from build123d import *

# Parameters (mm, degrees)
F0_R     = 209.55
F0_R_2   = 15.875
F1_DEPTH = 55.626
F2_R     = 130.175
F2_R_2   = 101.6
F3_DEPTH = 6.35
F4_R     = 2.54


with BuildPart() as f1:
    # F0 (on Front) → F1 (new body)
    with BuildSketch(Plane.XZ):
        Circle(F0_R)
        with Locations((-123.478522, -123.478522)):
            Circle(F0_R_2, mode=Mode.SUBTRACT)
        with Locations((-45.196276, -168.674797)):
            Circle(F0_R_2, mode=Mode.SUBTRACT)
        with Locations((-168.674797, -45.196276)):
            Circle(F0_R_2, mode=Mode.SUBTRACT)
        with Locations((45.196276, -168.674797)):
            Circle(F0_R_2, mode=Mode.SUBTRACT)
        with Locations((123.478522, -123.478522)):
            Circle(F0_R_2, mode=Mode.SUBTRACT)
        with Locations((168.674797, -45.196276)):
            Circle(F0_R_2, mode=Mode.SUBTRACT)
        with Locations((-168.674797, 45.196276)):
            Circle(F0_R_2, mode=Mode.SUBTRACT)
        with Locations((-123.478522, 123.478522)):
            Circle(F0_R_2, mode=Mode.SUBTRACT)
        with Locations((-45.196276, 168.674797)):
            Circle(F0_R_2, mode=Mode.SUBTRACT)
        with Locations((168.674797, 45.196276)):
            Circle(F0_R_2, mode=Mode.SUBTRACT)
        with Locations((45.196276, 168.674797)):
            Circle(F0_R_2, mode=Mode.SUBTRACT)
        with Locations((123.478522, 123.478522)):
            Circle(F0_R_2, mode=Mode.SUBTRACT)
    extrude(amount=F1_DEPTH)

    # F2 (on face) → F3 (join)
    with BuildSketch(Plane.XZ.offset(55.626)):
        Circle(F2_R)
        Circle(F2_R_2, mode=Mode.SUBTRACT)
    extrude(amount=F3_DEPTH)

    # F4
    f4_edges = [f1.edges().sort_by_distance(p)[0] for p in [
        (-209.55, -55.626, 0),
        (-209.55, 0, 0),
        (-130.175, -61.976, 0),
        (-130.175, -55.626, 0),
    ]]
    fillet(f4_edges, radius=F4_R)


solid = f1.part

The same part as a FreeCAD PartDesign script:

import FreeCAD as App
import Part
import Sketcher
Q = App.Units.Quantity


def edges_at(feature, points):
    """Names of the edges that pass closest to the given points."""
    edges = feature.Shape.Edges
    near = lambda p: min(range(len(edges)), key=lambda i: edges[i].distToShape(Part.Vertex(*p))[0])
    return sorted({f"Edge{near(p) + 1}" for p in points})

doc = App.newDocument("Part")
body = doc.addObject("PartDesign::Body", "Body")

# Sketch on XZ plane
sketch1 = body.newObject("Sketcher::SketchObject", "Sketch")
sketch1.AttachmentSupport = (doc.getObject("XZ_Plane"), [""])
sketch1.MapMode = "FlatFace"
sketch1.addGeometry(Part.Circle(App.Vector(0, 0, 0), App.Vector(0, 0, 1), 210), False)
sketch1.addGeometry(Part.Circle(App.Vector(-123, -123, 0), App.Vector(0, 0, 1), 16), False)
sketch1.addGeometry(Part.Circle(App.Vector(-45, -169, 0), App.Vector(0, 0, 1), 16), False)
sketch1.addGeometry(Part.Circle(App.Vector(-169, -45, 0), App.Vector(0, 0, 1), 16), False)
sketch1.addGeometry(Part.Circle(App.Vector(45, -169, 0), App.Vector(0, 0, 1), 16), False)
sketch1.addGeometry(Part.Circle(App.Vector(123, -123, 0), App.Vector(0, 0, 1), 16), False)
sketch1.addGeometry(Part.Circle(App.Vector(169, -45, 0), App.Vector(0, 0, 1), 16), False)
sketch1.addGeometry(Part.Circle(App.Vector(-169, 45, 0), App.Vector(0, 0, 1), 16), False)
sketch1.addGeometry(Part.Circle(App.Vector(-123, 123, 0), App.Vector(0, 0, 1), 16), False)
sketch1.addGeometry(Part.Circle(App.Vector(-45, 169, 0), App.Vector(0, 0, 1), 16), False)
sketch1.addGeometry(Part.Circle(App.Vector(169, 45, 0), App.Vector(0, 0, 1), 16), False)
sketch1.addGeometry(Part.Circle(App.Vector(45, 169, 0), App.Vector(0, 0, 1), 16), False)
sketch1.addGeometry(Part.Circle(App.Vector(123, 123, 0), App.Vector(0, 0, 1), 16), False)
sketch1.addConstraint(Sketcher.Constraint("Coincident", 0, 3, -1, 1))
sketch1.addConstraint(Sketcher.Constraint("Equal", 1, 2))
sketch1.addConstraint(Sketcher.Constraint("Equal", 2, 3))
sketch1.addConstraint(Sketcher.Constraint("Equal", 3, 4))
sketch1.addConstraint(Sketcher.Constraint("Equal", 4, 5))
sketch1.addConstraint(Sketcher.Constraint("Equal", 5, 6))
sketch1.addConstraint(Sketcher.Constraint("Equal", 6, 7))
sketch1.addConstraint(Sketcher.Constraint("Equal", 7, 8))
sketch1.addConstraint(Sketcher.Constraint("Equal", 8, 9))
sketch1.addConstraint(Sketcher.Constraint("Equal", 9, 10))
sketch1.addConstraint(Sketcher.Constraint("Equal", 10, 11))
sketch1.addConstraint(Sketcher.Constraint("Equal", 11, 12))
sketch1.addConstraint(Sketcher.Constraint("Symmetric", 6, 3, 7, 3, -1, 1))
sketch1.addConstraint(Sketcher.Constraint("Symmetric", 5, 3, 8, 3, -1, 1))
sketch1.addConstraint(Sketcher.Constraint("Symmetric", 4, 3, 9, 3, -1, 1))
sketch1.addConstraint(Sketcher.Constraint("Symmetric", 3, 3, 10, 3, -1, 1))
sketch1.addConstraint(Sketcher.Constraint("Symmetric", 2, 3, 11, 3, -1, 1))
sketch1.addConstraint(Sketcher.Constraint("Symmetric", 1, 3, 12, 3, -1, 1))
sketch1.addConstraint(Sketcher.Constraint("Symmetric", 2, 3, 4, 3, -2))
sketch1.addConstraint(Sketcher.Constraint("Symmetric", 1, 3, 5, 3, -2))
sketch1.addConstraint(Sketcher.Constraint("Symmetric", 3, 3, 6, 3, -2))
sketch1.addConstraint(Sketcher.Constraint("Diameter", 0, Q("16.5 in")))
sketch1.addConstraint(Sketcher.Constraint("Diameter", 1, Q("1.25 in")))
sketch1.addConstraint(Sketcher.Constraint("DistanceX", 1, 3, 4, 3, Q("168.674798 mm")))
sketch1.addConstraint(Sketcher.Constraint("DistanceY", 1, 3, 7, 3, Q("168.674798 mm")))
sketch1.addConstraint(Sketcher.Constraint("DistanceX", 1, 3, -1, 1, Q("123.478522 mm")))
sketch1.addConstraint(Sketcher.Constraint("DistanceY", 1, 3, -1, 1, Q("123.478522 mm")))
sketch1.addConstraint(Sketcher.Constraint("DistanceX", 3, 3, 2, 3, Q("123.478521 mm")))
sketch1.addConstraint(Sketcher.Constraint("DistanceY", 2, 3, 3, 3, Q("123.478521 mm")))
pad1 = body.newObject("PartDesign::Pad", "Pad")
pad1.Profile = sketch1
pad1.Length = Q("2.19 in")

# Sketch on XZ plane
sketch2 = body.newObject("Sketcher::SketchObject", "Sketch001")
sketch2.AttachmentSupport = (doc.getObject("XZ_Plane"), [""])
sketch2.MapMode = "FlatFace"
sketch2.AttachmentOffset = App.Placement(App.Vector(0, 0, 2.19 * 25.4), App.Rotation())
sketch2.addGeometry(Part.Circle(App.Vector(0, 0, 0), App.Vector(0, 0, 1), 130), False)
sketch2.addGeometry(Part.Circle(App.Vector(0, 0, 0), App.Vector(0, 0, 1), 102), False)
sketch2.addConstraint(Sketcher.Constraint("Coincident", 0, 3, -1, 1))
sketch2.addConstraint(Sketcher.Constraint("Coincident", 1, 3, -1, 1))
sketch2.addConstraint(Sketcher.Constraint("Diameter", 1, Q("8 in")))
sketch2.addConstraint(Sketcher.Constraint("Diameter", 0, Q("10.25 in")))
pad2 = body.newObject("PartDesign::Pad", "Pad001")
pad2.Profile = sketch2
pad2.Length = Q("0.25 in")
doc.recompute()

fillet = body.newObject("PartDesign::Fillet", "Fillet")
fillet.Base = (pad2, edges_at(pad2, [
    (-209.55, -55.626, 0),
    (-209.55, 0, 0),
    (-130.175, -61.976, 0),
    (-130.175, -55.626, 0),
]))
fillet.Radius = Q("0.1 in")

doc.recompute()
